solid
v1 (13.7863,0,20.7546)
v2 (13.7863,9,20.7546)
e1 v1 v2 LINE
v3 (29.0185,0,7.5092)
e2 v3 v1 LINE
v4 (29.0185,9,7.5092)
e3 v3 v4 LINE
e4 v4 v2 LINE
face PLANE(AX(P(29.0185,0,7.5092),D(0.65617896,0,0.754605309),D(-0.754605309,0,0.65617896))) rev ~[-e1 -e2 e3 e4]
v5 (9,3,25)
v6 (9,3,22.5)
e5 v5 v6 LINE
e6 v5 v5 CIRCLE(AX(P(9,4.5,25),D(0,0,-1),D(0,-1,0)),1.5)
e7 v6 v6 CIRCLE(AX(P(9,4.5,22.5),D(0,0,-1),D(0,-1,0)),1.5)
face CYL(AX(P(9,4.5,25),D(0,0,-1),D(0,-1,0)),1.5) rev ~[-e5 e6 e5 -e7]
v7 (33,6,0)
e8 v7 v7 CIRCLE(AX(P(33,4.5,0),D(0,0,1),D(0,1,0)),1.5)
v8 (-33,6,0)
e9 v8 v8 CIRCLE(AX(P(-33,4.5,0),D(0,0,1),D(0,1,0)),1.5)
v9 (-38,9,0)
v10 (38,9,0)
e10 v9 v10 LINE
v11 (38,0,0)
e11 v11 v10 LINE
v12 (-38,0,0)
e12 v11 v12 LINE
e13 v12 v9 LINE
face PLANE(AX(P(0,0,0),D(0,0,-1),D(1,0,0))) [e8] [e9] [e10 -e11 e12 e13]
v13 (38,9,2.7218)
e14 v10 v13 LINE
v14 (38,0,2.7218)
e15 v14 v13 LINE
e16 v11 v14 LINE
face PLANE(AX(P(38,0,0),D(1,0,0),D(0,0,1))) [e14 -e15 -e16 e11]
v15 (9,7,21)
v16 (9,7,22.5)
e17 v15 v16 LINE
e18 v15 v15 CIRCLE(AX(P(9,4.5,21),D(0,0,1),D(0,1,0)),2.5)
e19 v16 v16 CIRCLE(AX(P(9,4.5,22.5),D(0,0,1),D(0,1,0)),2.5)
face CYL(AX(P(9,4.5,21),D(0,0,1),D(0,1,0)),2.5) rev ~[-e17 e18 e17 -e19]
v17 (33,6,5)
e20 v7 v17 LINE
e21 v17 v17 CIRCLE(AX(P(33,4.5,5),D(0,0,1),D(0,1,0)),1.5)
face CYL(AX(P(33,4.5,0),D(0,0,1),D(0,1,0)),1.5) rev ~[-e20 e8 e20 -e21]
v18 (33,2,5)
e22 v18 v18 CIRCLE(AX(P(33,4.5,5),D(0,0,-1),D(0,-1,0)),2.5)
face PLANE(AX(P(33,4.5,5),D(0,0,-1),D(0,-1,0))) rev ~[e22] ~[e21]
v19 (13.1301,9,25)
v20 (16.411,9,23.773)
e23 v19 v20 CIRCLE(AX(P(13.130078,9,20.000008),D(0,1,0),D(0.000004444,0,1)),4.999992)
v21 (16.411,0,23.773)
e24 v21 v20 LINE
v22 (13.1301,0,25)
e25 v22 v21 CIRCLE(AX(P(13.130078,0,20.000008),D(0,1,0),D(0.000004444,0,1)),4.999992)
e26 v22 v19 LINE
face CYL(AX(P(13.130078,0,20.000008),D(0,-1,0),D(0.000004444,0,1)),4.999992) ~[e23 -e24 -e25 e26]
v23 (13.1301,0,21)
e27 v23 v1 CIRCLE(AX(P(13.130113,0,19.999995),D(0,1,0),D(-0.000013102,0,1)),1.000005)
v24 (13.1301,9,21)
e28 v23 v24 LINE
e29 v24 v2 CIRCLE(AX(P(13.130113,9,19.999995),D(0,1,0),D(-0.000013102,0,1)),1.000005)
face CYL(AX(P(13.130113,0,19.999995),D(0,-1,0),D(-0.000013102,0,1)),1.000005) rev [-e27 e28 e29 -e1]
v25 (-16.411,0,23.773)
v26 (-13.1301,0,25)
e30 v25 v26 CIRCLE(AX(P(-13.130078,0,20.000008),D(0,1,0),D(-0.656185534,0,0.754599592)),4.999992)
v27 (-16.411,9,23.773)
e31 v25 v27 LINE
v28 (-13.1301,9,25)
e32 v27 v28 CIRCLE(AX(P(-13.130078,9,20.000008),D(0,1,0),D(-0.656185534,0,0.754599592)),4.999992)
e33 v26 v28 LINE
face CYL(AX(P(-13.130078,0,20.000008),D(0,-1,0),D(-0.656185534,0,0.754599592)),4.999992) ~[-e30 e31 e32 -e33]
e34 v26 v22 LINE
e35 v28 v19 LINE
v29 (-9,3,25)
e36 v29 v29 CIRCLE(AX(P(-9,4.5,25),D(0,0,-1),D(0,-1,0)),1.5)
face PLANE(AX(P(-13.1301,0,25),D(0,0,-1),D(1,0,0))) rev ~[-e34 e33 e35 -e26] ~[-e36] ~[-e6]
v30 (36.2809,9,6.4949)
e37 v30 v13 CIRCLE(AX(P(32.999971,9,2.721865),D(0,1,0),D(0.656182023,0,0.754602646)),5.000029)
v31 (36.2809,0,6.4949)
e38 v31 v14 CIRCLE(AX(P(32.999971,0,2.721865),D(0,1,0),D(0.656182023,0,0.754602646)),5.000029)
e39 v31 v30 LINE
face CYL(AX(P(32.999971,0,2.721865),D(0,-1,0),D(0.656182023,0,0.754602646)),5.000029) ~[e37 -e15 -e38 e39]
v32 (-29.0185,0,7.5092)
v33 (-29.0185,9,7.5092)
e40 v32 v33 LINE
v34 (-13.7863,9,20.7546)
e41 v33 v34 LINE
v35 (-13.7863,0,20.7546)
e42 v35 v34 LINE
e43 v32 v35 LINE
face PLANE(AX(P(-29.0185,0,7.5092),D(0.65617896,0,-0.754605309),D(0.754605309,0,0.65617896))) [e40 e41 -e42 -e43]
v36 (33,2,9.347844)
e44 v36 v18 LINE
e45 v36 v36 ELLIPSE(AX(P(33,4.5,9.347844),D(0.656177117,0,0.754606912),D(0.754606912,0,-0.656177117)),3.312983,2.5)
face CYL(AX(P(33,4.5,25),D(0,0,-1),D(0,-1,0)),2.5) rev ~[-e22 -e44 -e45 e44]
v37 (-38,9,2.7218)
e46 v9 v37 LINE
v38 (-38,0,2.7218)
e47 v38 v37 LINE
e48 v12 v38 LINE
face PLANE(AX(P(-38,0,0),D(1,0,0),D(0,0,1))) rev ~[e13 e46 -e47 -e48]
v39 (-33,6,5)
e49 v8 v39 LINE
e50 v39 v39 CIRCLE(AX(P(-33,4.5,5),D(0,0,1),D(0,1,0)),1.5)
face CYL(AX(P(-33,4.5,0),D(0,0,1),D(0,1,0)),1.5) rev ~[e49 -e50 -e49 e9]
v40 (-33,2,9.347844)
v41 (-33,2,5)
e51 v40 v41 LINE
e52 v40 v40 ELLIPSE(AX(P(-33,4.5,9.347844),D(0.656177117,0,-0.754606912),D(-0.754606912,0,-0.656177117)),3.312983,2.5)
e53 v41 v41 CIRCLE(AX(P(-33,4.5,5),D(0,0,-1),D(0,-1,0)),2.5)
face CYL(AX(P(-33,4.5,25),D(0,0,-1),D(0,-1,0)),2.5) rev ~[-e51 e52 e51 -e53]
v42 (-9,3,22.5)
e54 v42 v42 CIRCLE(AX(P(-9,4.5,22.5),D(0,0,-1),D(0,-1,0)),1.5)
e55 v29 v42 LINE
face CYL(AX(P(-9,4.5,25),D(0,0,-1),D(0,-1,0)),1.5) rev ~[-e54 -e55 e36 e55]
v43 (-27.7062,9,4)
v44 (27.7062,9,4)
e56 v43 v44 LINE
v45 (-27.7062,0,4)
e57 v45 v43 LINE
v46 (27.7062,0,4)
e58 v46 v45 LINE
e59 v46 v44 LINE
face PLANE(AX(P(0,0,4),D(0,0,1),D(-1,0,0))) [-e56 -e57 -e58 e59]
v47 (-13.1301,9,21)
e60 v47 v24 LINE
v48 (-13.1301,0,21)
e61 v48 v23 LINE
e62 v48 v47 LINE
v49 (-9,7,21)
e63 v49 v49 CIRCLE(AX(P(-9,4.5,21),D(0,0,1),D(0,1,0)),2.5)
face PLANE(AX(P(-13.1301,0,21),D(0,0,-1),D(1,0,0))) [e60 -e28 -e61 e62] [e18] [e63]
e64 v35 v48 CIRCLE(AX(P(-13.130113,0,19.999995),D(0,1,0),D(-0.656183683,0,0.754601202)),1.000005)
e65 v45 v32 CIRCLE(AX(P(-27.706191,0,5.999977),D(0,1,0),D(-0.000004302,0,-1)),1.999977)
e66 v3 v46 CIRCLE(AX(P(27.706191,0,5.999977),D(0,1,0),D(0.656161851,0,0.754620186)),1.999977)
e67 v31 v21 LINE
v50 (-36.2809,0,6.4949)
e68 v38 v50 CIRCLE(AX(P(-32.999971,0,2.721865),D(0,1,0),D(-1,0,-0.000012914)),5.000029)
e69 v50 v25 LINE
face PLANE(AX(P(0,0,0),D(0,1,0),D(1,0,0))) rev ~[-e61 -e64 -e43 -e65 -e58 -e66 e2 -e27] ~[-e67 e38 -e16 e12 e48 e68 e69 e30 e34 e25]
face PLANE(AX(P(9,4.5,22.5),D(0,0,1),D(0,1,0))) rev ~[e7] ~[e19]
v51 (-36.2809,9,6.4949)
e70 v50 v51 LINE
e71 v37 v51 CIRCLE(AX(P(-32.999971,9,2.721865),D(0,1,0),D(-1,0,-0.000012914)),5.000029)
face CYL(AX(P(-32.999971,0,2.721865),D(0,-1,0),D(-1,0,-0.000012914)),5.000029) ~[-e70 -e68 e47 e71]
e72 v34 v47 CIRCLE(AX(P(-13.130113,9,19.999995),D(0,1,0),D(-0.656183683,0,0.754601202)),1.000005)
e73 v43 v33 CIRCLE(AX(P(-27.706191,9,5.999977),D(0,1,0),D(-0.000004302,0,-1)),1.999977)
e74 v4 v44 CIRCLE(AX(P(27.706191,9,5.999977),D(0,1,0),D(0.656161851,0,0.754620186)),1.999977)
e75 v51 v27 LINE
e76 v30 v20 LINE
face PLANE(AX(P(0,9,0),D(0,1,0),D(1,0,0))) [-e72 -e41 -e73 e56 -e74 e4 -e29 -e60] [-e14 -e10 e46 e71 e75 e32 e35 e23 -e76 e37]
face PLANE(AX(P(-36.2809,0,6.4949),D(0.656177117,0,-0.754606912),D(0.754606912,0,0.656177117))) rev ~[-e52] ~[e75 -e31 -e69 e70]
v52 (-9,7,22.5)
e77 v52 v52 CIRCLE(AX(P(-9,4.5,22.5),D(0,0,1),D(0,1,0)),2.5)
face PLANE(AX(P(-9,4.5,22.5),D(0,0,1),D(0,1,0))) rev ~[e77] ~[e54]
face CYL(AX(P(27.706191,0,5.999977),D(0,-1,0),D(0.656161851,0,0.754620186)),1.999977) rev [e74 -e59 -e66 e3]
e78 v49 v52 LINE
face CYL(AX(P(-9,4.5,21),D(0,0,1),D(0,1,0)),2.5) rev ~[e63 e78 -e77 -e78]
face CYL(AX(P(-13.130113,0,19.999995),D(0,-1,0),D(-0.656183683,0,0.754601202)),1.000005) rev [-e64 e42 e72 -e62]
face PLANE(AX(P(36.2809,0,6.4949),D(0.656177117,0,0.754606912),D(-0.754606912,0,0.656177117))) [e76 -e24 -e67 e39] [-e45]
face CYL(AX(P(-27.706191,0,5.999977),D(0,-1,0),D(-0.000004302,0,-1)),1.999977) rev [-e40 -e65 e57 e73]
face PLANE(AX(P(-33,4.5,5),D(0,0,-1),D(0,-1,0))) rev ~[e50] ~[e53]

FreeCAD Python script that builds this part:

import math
import FreeCAD as App
import Part
import Sketcher
from FreeCAD import Vector
Q = App.Units.Quantity

doc = App.newDocument("Part")
params = doc.addObject("Spreadsheet::Sheet", "Params")
for row, (alias, value) in enumerate([
    ("sketch1_radius", "5 mm"),
    ("sketch1_radius2", "2 mm"),
    ("sketch1_radius3", "1 mm"),
    ("sketch1_width", "76 mm"),
    ("pad1_length", "9 mm"),
    ("sketch2_diameter", "3 mm"),
    ("hole_diameter", "3 mm"),
    ("hole_depth", "122 mm"),
    ("sketch3_diameter", "5 mm"),
    ("hole2_diameter", "5 mm"),
    ("hole2_depth", "20 mm"),
    ("sketch4_diameter", "5 mm"),
    ("hole3_diameter", "5 mm"),
    ("hole3_depth", "1.5 mm"),
    ("sketch5_diameter", "3 mm"),
    ("hole4_diameter", "3 mm"),
    ("hole4_depth", "20 mm"),
], start=1):
    params.set(f"A{row}", alias)
    params.set(f"B{row}", "=" + value)
    params.setAlias(f"B{row}", alias)

body = doc.addObject("PartDesign::Body", "Body")

sketch1 = body.newObject("Sketcher::SketchObject", "Sketch")
sketch1.AttachmentSupport = (doc.getObject("XZ_Plane"), [""])
sketch1.MapMode = "FlatFace"
sketch1.addGeometry([
    Part.LineSegment(Vector(38, 0, 0), Vector(-38, 0, 0)),
    Part.LineSegment(Vector(-38, 0, 0), Vector(-38, 2.7, 0)),
    Part.ArcOfCircle(Part.Circle(Vector(-33, 2.7, 0), Vector(0, 0, 1), 5), math.radians(131), math.radians(180)),
    Part.LineSegment(Vector(-36.3, 6.5, 0), Vector(-16.4, 23.8, 0)),
    Part.ArcOfCircle(Part.Circle(Vector(-13.1, 20, 0), Vector(0, 0, 1), 5), math.radians(90), math.radians(131)),
    Part.LineSegment(Vector(-13.1, 25, 0), Vector(13.1, 25, 0)),
    Part.ArcOfCircle(Part.Circle(Vector(13.1, 20, 0), Vector(0, 0, 1), 5), math.radians(49), math.radians(90)),
    Part.LineSegment(Vector(16.4, 23.8, 0), Vector(36.3, 6.5, 0)),
    Part.ArcOfCircle(Part.Circle(Vector(33, 2.7, 0), Vector(0, 0, 1), 5), math.radians(0), math.radians(49)),
    Part.LineSegment(Vector(38, 2.7, 0), Vector(38, 0, 0)),
    Part.LineSegment(Vector(-27.7, 4, 0), Vector(27.7, 4, 0)),
    Part.ArcOfCircle(Part.Circle(Vector(27.7, 6, 0), Vector(0, 0, 1), 2), math.radians(-90), math.radians(49)),
    Part.LineSegment(Vector(29, 7.5, 0), Vector(13.8, 20.8, 0)),
    Part.ArcOfCircle(Part.Circle(Vector(13.1, 20, 0), Vector(0, 0, 1), 1), math.radians(49), math.radians(90)),
    Part.LineSegment(Vector(13.1, 21, 0), Vector(-13.1, 21, 0)),
    Part.ArcOfCircle(Part.Circle(Vector(-13.1, 20, 0), Vector(0, 0, 1), 1), math.radians(90), math.radians(131)),
    Part.LineSegment(Vector(-13.8, 20.8, 0), Vector(-29, 7.5, 0)),
    Part.ArcOfCircle(Part.Circle(Vector(-27.7, 6, 0), Vector(0, 0, 1), 2), math.radians(131), math.radians(270)),
], False)
sketch1.addConstraint([
    Sketcher.Constraint("Coincident", 0, 2, 1, 1),
    Sketcher.Constraint("Tangent", 1, 2, 2, 2),
    Sketcher.Constraint("Tangent", 2, 1, 3, 1),
    Sketcher.Constraint("Tangent", 3, 2, 4, 2),
    Sketcher.Constraint("Tangent", 4, 1, 5, 1),
    Sketcher.Constraint("Tangent", 5, 2, 6, 2),
    Sketcher.Constraint("Tangent", 6, 1, 7, 1),
    Sketcher.Constraint("Tangent", 7, 2, 8, 2),
    Sketcher.Constraint("Tangent", 8, 1, 9, 1),
    Sketcher.Constraint("Coincident", 9, 2, 0, 1),
    Sketcher.Constraint("Tangent", 10, 2, 11, 1),
    Sketcher.Constraint("Tangent", 11, 2, 12, 1),
    Sketcher.Constraint("Tangent", 12, 2, 13, 1),
    Sketcher.Constraint("Tangent", 13, 2, 14, 1),
    Sketcher.Constraint("Tangent", 14, 2, 15, 1),
    Sketcher.Constraint("Tangent", 15, 2, 16, 1),
    Sketcher.Constraint("Tangent", 16, 2, 17, 1),
    Sketcher.Constraint("Tangent", 17, 2, 10, 1),
    Sketcher.Constraint("Horizontal", 0),
    Sketcher.Constraint("Vertical", 1),
    Sketcher.Constraint("Horizontal", 5),
    Sketcher.Constraint("Vertical", 9),
    Sketcher.Constraint("Horizontal", 10),
    Sketcher.Constraint("Horizontal", 14),
    Sketcher.Constraint("Coincident", 13, 3, 6, 3),
    Sketcher.Constraint("Coincident", 15, 3, 4, 3),
    Sketcher.Constraint("Equal", 2, 4),
    Sketcher.Constraint("Equal", 4, 6),
    Sketcher.Constraint("Equal", 6, 8),
    Sketcher.Constraint("Equal", 11, 17),
    Sketcher.Constraint("Symmetric", 0, 2, 9, 2, -1, 1),
    Sketcher.Constraint("Symmetric", 3, 2, 6, 1, -2),
    Sketcher.Constraint("Parallel", 7, 12),
    Sketcher.Constraint("Parallel", 3, 16),
    Sketcher.Constraint("Radius", 2, Q("5 mm")),
    Sketcher.Constraint("Radius", 11, Q("2 mm")),
    Sketcher.Constraint("Radius", 13, Q("1 mm")),
    Sketcher.Constraint("DistanceX", 0, 2, 0, 1, Q("76 mm")),
    Sketcher.Constraint("DistanceY", -1, 1, 4, 3, Q("20 mm")),
    Sketcher.Constraint("DistanceY", -1, 1, 11, 3, Q("6 mm")),
    Sketcher.Constraint("Angle", 3, Q("41.009 deg")),
    Sketcher.Constraint("DistanceX", 4, 3, -1, 1, Q("13.13 mm")),
])
sketch1.setExpression("Constraints[34]", "Params.sketch1_radius")
sketch1.setExpression("Constraints[35]", "Params.sketch1_radius2")
sketch1.setExpression("Constraints[36]", "Params.sketch1_radius3")
sketch1.setExpression("Constraints[37]", "Params.sketch1_width")
pad1 = body.newObject("PartDesign::Pad", "Pad")
pad1.Profile = sketch1
pad1.setExpression("Length", "Params.pad1_length")
pad1.Reversed = True

sketch2 = body.newObject("Sketcher::SketchObject", "Sketch001")
sketch2.AttachmentSupport = (doc.getObject("XY_Plane"), [""])
sketch2.MapMode = "FlatFace"
sketch2.addGeometry([
    Part.Circle(Vector(33, 4.5, 0), Vector(0, 0, 1), 1.5),
    Part.Circle(Vector(-33, 4.5, 0), Vector(0, 0, 1), 1.5),
], False)
sketch2.addConstraint([
    Sketcher.Constraint("Equal", 0, 1),
    Sketcher.Constraint("Symmetric", 0, 3, 1, 3, -2),
    Sketcher.Constraint("Diameter", 0, Q("3 mm")),
    Sketcher.Constraint("DistanceX", -1, 1, 0, 3, Q("33 mm")),
    Sketcher.Constraint("DistanceY", -1, 1, 0, 3, Q("4.5 mm")),
])
sketch2.setExpression("Constraints[2]", "Params.sketch2_diameter")
doc.recompute()
hole = body.newObject("PartDesign::Hole", "Hole")
hole.Profile = sketch2
hole.ThreadType = "None"
hole.setExpression("Diameter", "Params.hole_diameter")
hole.DepthType = "Dimension"
hole.setExpression("Depth", "Params.hole_depth")
hole.DrillPoint = "Flat"
hole.Reversed = True

sketch3 = body.newObject("Sketcher::SketchObject", "Sketch002")
sketch3.AttachmentSupport = (doc.getObject("XY_Plane"), [""])
sketch3.MapMode = "FlatFace"
sketch3.AttachmentOffset = App.Placement(Vector(0, 0, 25), App.Rotation())
sketch3.addGeometry([
    Part.Circle(Vector(33, 4.5, 0), Vector(0, 0, 1), 2.5),
    Part.Circle(Vector(-33, 4.5, 0), Vector(0, 0, 1), 2.5),
], False)
sketch3.addConstraint([
    Sketcher.Constraint("Equal", 0, 1),
    Sketcher.Constraint("Symmetric", 0, 3, 1, 3, -2),
    Sketcher.Constraint("Diameter", 0, Q("5 mm")),
    Sketcher.Constraint("DistanceX", -1, 1, 0, 3, Q("33 mm")),
    Sketcher.Constraint("DistanceY", -1, 1, 0, 3, Q("4.5 mm")),
])
sketch3.setExpression("Constraints[2]", "Params.sketch3_diameter")
doc.recompute()
hole2 = body.newObject("PartDesign::Hole", "Hole001")
hole2.Profile = sketch3
hole2.ThreadType = "None"
hole2.setExpression("Diameter", "Params.hole2_diameter")
hole2.DepthType = "Dimension"
hole2.setExpression("Depth", "Params.hole2_depth")
hole2.DrillPoint = "Flat"

sketch4 = body.newObject("Sketcher::SketchObject", "Sketch003")
sketch4.AttachmentSupport = (doc.getObject("XY_Plane"), [""])
sketch4.MapMode = "FlatFace"
sketch4.AttachmentOffset = App.Placement(Vector(0, 0, 21), App.Rotation())
sketch4.addGeometry([
    Part.Circle(Vector(9, 4.5, 0), Vector(0, 0, 1), 2.5),
    Part.Circle(Vector(-9, 4.5, 0), Vector(0, 0, 1), 2.5),
], False)
sketch4.addConstraint([
    Sketcher.Constraint("Equal", 0, 1),
    Sketcher.Constraint("Symmetric", 0, 3, 1, 3, -2),
    Sketcher.Constraint("Diameter", 0, Q("5 mm")),
    Sketcher.Constraint("DistanceX", -1, 1, 0, 3, Q("9 mm")),
    Sketcher.Constraint("DistanceY", -1, 1, 0, 3, Q("4.5 mm")),
])
sketch4.setExpression("Constraints[2]", "Params.sketch4_diameter")
doc.recompute()
hole3 = body.newObject("PartDesign::Hole", "Hole002")
hole3.Profile = sketch4
hole3.ThreadType = "None"
hole3.setExpression("Diameter", "Params.hole3_diameter")
hole3.DepthType = "Dimension"
hole3.setExpression("Depth", "Params.hole3_depth")
hole3.DrillPoint = "Flat"
hole3.Reversed = True

sketch5 = body.newObject("Sketcher::SketchObject", "Sketch004")
sketch5.AttachmentSupport = (doc.getObject("XY_Plane"), [""])
sketch5.MapMode = "FlatFace"
sketch5.AttachmentOffset = App.Placement(Vector(0, 0, 25), App.Rotation())
sketch5.addGeometry([
    Part.Circle(Vector(-9, 4.5, 0), Vector(0, 0, 1), 1.5),
    Part.Circle(Vector(9, 4.5, 0), Vector(0, 0, 1), 1.5),
], False)
sketch5.addConstraint([
    Sketcher.Constraint("Equal", 0, 1),
    Sketcher.Constraint("Symmetric", 0, 3, 1, 3, -2),
    Sketcher.Constraint("Diameter", 0, Q("3 mm")),
    Sketcher.Constraint("DistanceX", 0, 3, -1, 1, Q("9 mm")),
    Sketcher.Constraint("DistanceY", -1, 1, 0, 3, Q("4.5 mm")),
])
sketch5.setExpression("Constraints[2]", "Params.sketch5_diameter")
doc.recompute()
hole4 = body.newObject("PartDesign::Hole", "Hole003")
hole4.Profile = sketch5
hole4.ThreadType = "None"
hole4.setExpression("Diameter", "Params.hole4_diameter")
hole4.DepthType = "Dimension"
hole4.setExpression("Depth", "Params.hole4_depth")
hole4.DrillPoint = "Flat"

doc.recompute()
